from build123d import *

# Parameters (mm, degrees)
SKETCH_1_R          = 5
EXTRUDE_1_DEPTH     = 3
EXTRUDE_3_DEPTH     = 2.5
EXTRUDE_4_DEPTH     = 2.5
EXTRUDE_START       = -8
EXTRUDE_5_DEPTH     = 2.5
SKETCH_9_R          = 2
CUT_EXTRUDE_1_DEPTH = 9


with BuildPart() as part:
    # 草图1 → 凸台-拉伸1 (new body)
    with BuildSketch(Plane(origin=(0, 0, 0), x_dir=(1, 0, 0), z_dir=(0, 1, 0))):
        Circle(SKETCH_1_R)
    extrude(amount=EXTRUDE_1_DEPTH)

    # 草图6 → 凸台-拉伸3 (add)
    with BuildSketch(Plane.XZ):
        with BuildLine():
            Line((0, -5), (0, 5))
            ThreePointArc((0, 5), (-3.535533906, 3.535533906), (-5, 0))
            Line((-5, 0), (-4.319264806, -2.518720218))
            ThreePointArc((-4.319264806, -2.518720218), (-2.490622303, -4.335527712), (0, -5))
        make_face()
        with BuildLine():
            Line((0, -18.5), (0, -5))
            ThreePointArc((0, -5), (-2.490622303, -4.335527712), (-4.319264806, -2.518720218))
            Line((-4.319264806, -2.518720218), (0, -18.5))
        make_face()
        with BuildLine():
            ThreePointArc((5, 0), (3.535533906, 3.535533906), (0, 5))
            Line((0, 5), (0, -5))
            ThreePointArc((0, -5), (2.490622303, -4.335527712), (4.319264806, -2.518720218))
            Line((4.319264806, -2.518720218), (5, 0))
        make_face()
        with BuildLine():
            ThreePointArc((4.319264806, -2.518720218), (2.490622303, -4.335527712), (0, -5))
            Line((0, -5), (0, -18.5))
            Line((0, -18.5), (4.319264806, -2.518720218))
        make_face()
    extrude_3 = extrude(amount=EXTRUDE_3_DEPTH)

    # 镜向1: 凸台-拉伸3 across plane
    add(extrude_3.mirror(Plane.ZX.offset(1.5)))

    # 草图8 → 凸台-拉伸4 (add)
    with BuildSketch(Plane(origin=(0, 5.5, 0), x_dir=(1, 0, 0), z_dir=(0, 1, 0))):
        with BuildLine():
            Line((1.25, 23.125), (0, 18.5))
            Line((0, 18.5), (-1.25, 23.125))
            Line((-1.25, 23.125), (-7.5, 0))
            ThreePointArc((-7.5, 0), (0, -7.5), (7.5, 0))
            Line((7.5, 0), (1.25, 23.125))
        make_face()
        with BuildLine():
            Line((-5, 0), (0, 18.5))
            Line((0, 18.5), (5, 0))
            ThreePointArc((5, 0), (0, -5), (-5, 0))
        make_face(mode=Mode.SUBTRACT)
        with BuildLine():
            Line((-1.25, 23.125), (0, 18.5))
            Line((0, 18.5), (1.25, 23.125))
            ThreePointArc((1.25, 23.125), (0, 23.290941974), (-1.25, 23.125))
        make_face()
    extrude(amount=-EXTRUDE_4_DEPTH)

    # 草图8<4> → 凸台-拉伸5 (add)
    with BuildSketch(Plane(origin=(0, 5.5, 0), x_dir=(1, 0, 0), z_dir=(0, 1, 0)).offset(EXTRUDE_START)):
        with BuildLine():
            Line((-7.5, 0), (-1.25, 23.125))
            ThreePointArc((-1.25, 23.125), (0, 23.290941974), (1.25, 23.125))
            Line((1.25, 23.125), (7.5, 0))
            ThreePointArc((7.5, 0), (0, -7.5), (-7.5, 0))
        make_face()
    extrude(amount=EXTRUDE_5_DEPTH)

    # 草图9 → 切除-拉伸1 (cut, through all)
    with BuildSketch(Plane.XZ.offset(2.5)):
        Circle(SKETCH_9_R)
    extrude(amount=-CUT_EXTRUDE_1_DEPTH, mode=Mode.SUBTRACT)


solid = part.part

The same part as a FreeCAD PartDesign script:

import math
import FreeCAD as App
import Part
import Sketcher
from FreeCAD import Vector

doc = App.newDocument("Part")
params = doc.addObject("Spreadsheet::Sheet", "Params")
for row, (alias, value) in enumerate([
    ("sketch1_diameter", "10 mm"),
    ("pad1_length", "3 mm"),
    ("sketch2_radius", "5 mm"),
    ("pad2_length", "2.5 mm"),
    ("sketch3_radius", "5 mm"),
    ("sketch3_radius2", "7.5 mm"),
    ("pad3_length", "2.5 mm"),
    ("sketch4_radius", "7.5 mm"),
    ("pad4_length", "2.5 mm"),
    ("sketch5_diameter", "4 mm"),
], start=1):
    params.set(f"A{row}", alias)
    params.set(f"B{row}", "=" + value)
    params.setAlias(f"B{row}", alias)

body = doc.addObject("PartDesign::Body", "Body")

# Sketch on XZ plane
sketch1 = doc.addObject("Sketcher::SketchObject", "Sketch")
body.addObject(sketch1)
sketch1.AttachmentSupport = (doc.XZ_Plane, [""])
sketch1.MapMode = "FlatFace"
sketch1.addGeometry(Part.Circle(Vector(0, 0, 0), Vector(0, 0, 1), 5), False)
sketch1.addConstraint(Sketcher.Constraint("Coincident", 0, 3, -1, 1))
sketch1.addConstraint(Sketcher.Constraint("Diameter", 0, 10.0))
sketch1.setExpression("Constraints[1]", "Params.sketch1_diameter")
pad1 = doc.addObject("PartDesign::Pad", "Pad")
body.addObject(pad1)
pad1.Profile = sketch1
pad1.setExpression("Length", "Params.pad1_length")
pad1.Reversed = True

# Sketch on XZ plane
sketch2 = doc.addObject("Sketcher::SketchObject", "Sketch001")
body.addObject(sketch2)
sketch2.AttachmentSupport = (doc.XZ_Plane, [""])
sketch2.MapMode = "FlatFace"
sketch2.addGeometry(Part.LineSegment(Vector(0, -18.5, 0), Vector(4.3, -2.5, 0)), False)
sketch2.addGeometry(Part.LineSegment(Vector(4.3, -2.5, 0), Vector(5, 0, 0)), False)
sketch2.addGeometry(Part.ArcOfCircle(Part.Circle(Vector(0, 0, 0), Vector(0, 0, 1), 5), math.radians(0), math.radians(90)), False)
sketch2.addGeometry(Part.ArcOfCircle(Part.Circle(Vector(0, 0, 0), Vector(0, 0, 1), 5), math.radians(90), math.radians(180)), False)
sketch2.addGeometry(Part.LineSegment(Vector(-5, 0, 0), Vector(-4.3, -2.5, 0)), False)
sketch2.addGeometry(Part.LineSegment(Vector(-4.3, -2.5, 0), Vector(0, -18.5, 0)), False)
sketch2.addConstraint(Sketcher.Constraint("Coincident", 0, 2, 1, 1))
sketch2.addConstraint(Sketcher.Constraint("Coincident", 1, 2, 2, 1))
sketch2.addConstraint(Sketcher.Constraint("Tangent", 2, 2, 3, 1))
sketch2.addConstraint(Sketcher.Constraint("Coincident", 3, 2, 4, 1))
sketch2.addConstraint(Sketcher.Constraint("Coincident", 4, 2, 5, 1))
sketch2.addConstraint(Sketcher.Constraint("Coincident", 5, 2, 0, 1))
sketch2.addConstraint(Sketcher.Constraint("Coincident", 2, 3, -1, 1))
sketch2.addConstraint(Sketcher.Constraint("Equal", 2, 3))
sketch2.addConstraint(Sketcher.Constraint("Symmetric", 0, 2, 4, 2, -2))
sketch2.addConstraint(Sketcher.Constraint("PointOnObject", 1, 2, -1))
sketch2.addConstraint(Sketcher.Constraint("PointOnObject", 2, 2, -2))
sketch2.addConstraint(Sketcher.Constraint("PointOnObject", 3, 2, -1))
sketch2.addConstraint(Sketcher.Constraint("PointOnObject", 5, 2, -2))
sketch2.addConstraint(Sketcher.Constraint("Parallel", 0, 1))
sketch2.addConstraint(Sketcher.Constraint("Radius", 2, 5.0))
sketch2.addConstraint(Sketcher.Constraint("DistanceY", 5, 2, -1, 1, 18.5))
sketch2.addConstraint(Sketcher.Constraint("Distance", 1, 2.60909))
sketch2.setExpression("Constraints[14]", "Params.sketch2_radius")
pad2 = doc.addObject("PartDesign::Pad", "Pad001")
body.addObject(pad2)
pad2.Profile = sketch2
pad2.setExpression("Length", "Params.pad2_length")
doc.recompute()

datumplane = doc.addObject("PartDesign::Plane", "DatumPlane")
body.addObject(datumplane)
datumplane.AttachmentSupport = (doc.XZ_Plane, [""])
datumplane.MapMode = "FlatFace"
datumplane.AttachmentOffset = App.Placement(Vector(0, 0, -1.5), App.Rotation())
mirrored = doc.addObject("PartDesign::Mirrored", "Mirrored")
body.addObject(mirrored)
mirrored.Originals = [pad2]
mirrored.MirrorPlane = (datumplane, [""])
body.Tip = mirrored

# Sketch on XZ plane
sketch3 = doc.addObject("Sketcher::SketchObject", "Sketch002")
body.addObject(sketch3)
sketch3.AttachmentSupport = (doc.XZ_Plane, [""])
sketch3.MapMode = "FlatFace"
sketch3.AttachmentOffset = App.Placement(Vector(0, 0, -5.5), App.Rotation())
sketch3.addGeometry(Part.ArcOfCircle(Part.Circle(Vector(0, 0, 0), Vector(0, 0, 1), 7.5), math.radians(0), math.radians(180)), False)
sketch3.addGeometry(Part.LineSegment(Vector(7.5, 0, 0), Vector(1.2, -23.1, 0)), False)
sketch3.addGeometry(Part.ArcOfCircle(Part.Circle(Vector(0, -18.5, 0), Vector(0, 0, 1), 4.8), math.radians(-105), math.radians(-75)), False)
sketch3.addGeometry(Part.LineSegment(Vector(-1.2, -23.1, 0), Vector(-7.5, 0, 0)), False)
sketch3.addGeometry(Part.LineSegment(Vector(-5, 0, 0), Vector(0, -18.5, 0)), False)
sketch3.addGeometry(Part.LineSegment(Vector(0, -18.5, 0), Vector(5, 0, 0)), False)
sketch3.addGeometry(Part.ArcOfCircle(Part.Circle(Vector(0, 0, 0), Vector(0, 0, 1), 5), math.radians(0), math.radians(180)), False)
sketch3.addConstraint(Sketcher.Constraint("Coincident", 0, 1, 1, 1))
sketch3.addConstraint(Sketcher.Constraint("Coincident", 1, 2, 2, 2))
sketch3.addConstraint(Sketcher.Constraint("Coincident", 2, 1, 3, 1))
sketch3.addConstraint(Sketcher.Constraint("Coincident", 3, 2, 0, 2))
sketch3.addConstraint(Sketcher.Constraint("Coincident", 4, 2, 5, 1))
sketch3.addConstraint(Sketcher.Constraint("Coincident", 5, 2, 6, 1))
sketch3.addConstraint(Sketcher.Constraint("Coincident", 6, 2, 4, 1))
sketch3.addConstraint(Sketcher.Constraint("Coincident", 0, 3, -1, 1))
sketch3.addConstraint(Sketcher.Constraint("Coincident", 6, 3, -1, 1))
sketch3.addConstraint(Sketcher.Constraint("Coincident", 4, 2, 2, 3))
sketch3.addConstraint(Sketcher.Constraint("Symmetric", 1, 2, 2, 1, -2))
sketch3.addConstraint(Sketcher.Constraint("PointOnObject", 0, 1, -1))
sketch3.addConstraint(Sketcher.Constraint("PointOnObject", 3, 2, -1))
sketch3.addConstraint(Sketcher.Constraint("PointOnObject", 5, 2, -1))
sketch3.addConstraint(Sketcher.Constraint("PointOnObject", 6, 2, -1))
sketch3.addConstraint(Sketcher.Constraint("Parallel", 3, 4))
sketch3.addConstraint(Sketcher.Constraint("Radius", 6, 5.0))
sketch3.addConstraint(Sketcher.Constraint("Radius", 0, 7.5))
sketch3.addConstraint(Sketcher.Constraint("DistanceY", 2, 3, -1, 1, 18.5))
sketch3.addConstraint(Sketcher.Constraint("DistanceX", 2, 1, 1, 2, 2.5))
sketch3.setExpression("Constraints[16]", "Params.sketch3_radius")
sketch3.setExpression("Constraints[17]", "Params.sketch3_radius2")
pad3 = doc.addObject("PartDesign::Pad", "Pad002")
body.addObject(pad3)
pad3.Profile = sketch3
pad3.setExpression("Length", "Params.pad3_length")

# Sketch on XZ plane
sketch4 = doc.addObject("Sketcher::SketchObject", "Sketch003")
body.addObject(sketch4)
sketch4.AttachmentSupport = (doc.XZ_Plane, [""])
sketch4.MapMode = "FlatFace"
sketch4.AttachmentOffset = App.Placement(Vector(0, 0, 2.5), App.Rotation())
sketch4.addGeometry(Part.LineSegment(Vector(-1.2, -23.1, 0), Vector(-7.5, 0, 0)), False)
sketch4.addGeometry(Part.ArcOfCircle(Part.Circle(Vector(0, 0, 0), Vector(0, 0, 1), 7.5), math.radians(0), math.radians(180)), False)
sketch4.addGeometry(Part.LineSegment(Vector(7.5, 0, 0), Vector(1.2, -23.1, 0)), False)
sketch4.addGeometry(Part.ArcOfCircle(Part.Circle(Vector(0, -18.5, 0), Vector(0, 0, 1), 4.8), math.radians(-105), math.radians(-75)), False)
sketch4.addConstraint(Sketcher.Constraint("Coincident", 0, 2, 1, 2))
sketch4.addConstraint(Sketcher.Constraint("Coincident", 1, 1, 2, 1))
sketch4.addConstraint(Sketcher.Constraint("Coincident", 2, 2, 3, 2))
sketch4.addConstraint(Sketcher.Constraint("Coincident", 3, 1, 0, 1))
sketch4.addConstraint(Sketcher.Constraint("Coincident", 1, 3, -1, 1))
sketch4.addConstraint(Sketcher.Constraint("Symmetric", 2, 2, 3, 1, -2))
sketch4.addConstraint(Sketcher.Constraint("PointOnObject", 0, 2, -1))
sketch4.addConstraint(Sketcher.Constraint("PointOnObject", 1, 1, -1))
sketch4.addConstraint(Sketcher.Constraint("Radius", 1, 7.5))
sketch4.addConstraint(Sketcher.Constraint("DistanceY", 3, 3, -1, 1, 18.5))
sketch4.addConstraint(Sketcher.Constraint("DistanceX", 3, 1, 2, 2, 2.5))
sketch4.addConstraint(Sketcher.Constraint("Radius", 3, 4.790942))
sketch4.setExpression("Constraints[8]", "Params.sketch4_radius")
pad4 = doc.addObject("PartDesign::Pad", "Pad003")
body.addObject(pad4)
pad4.Profile = sketch4
pad4.setExpression("Length", "Params.pad4_length")
pad4.Reversed = True

# Sketch on XZ plane
sketch5 = doc.addObject("Sketcher::SketchObject", "Sketch004")
body.addObject(sketch5)
sketch5.AttachmentSupport = (doc.XZ_Plane, [""])
sketch5.MapMode = "FlatFace"
sketch5.AttachmentOffset = App.Placement(Vector(0, 0, 2.5), App.Rotation())
sketch5.addGeometry(Part.Circle(Vector(0, 0, 0), Vector(0, 0, 1), 2), False)
sketch5.addConstraint(Sketcher.Constraint("Coincident", 0, 3, -1, 1))
sketch5.addConstraint(Sketcher.Constraint("Diameter", 0, 4.0))
sketch5.setExpression("Constraints[1]", "Params.sketch5_diameter")
pocket1 = doc.addObject("PartDesign::Pocket", "Pocket")
body.addObject(pocket1)
pocket1.Profile = sketch5
pocket1.Type = "ThroughAll"

doc.recompute()
